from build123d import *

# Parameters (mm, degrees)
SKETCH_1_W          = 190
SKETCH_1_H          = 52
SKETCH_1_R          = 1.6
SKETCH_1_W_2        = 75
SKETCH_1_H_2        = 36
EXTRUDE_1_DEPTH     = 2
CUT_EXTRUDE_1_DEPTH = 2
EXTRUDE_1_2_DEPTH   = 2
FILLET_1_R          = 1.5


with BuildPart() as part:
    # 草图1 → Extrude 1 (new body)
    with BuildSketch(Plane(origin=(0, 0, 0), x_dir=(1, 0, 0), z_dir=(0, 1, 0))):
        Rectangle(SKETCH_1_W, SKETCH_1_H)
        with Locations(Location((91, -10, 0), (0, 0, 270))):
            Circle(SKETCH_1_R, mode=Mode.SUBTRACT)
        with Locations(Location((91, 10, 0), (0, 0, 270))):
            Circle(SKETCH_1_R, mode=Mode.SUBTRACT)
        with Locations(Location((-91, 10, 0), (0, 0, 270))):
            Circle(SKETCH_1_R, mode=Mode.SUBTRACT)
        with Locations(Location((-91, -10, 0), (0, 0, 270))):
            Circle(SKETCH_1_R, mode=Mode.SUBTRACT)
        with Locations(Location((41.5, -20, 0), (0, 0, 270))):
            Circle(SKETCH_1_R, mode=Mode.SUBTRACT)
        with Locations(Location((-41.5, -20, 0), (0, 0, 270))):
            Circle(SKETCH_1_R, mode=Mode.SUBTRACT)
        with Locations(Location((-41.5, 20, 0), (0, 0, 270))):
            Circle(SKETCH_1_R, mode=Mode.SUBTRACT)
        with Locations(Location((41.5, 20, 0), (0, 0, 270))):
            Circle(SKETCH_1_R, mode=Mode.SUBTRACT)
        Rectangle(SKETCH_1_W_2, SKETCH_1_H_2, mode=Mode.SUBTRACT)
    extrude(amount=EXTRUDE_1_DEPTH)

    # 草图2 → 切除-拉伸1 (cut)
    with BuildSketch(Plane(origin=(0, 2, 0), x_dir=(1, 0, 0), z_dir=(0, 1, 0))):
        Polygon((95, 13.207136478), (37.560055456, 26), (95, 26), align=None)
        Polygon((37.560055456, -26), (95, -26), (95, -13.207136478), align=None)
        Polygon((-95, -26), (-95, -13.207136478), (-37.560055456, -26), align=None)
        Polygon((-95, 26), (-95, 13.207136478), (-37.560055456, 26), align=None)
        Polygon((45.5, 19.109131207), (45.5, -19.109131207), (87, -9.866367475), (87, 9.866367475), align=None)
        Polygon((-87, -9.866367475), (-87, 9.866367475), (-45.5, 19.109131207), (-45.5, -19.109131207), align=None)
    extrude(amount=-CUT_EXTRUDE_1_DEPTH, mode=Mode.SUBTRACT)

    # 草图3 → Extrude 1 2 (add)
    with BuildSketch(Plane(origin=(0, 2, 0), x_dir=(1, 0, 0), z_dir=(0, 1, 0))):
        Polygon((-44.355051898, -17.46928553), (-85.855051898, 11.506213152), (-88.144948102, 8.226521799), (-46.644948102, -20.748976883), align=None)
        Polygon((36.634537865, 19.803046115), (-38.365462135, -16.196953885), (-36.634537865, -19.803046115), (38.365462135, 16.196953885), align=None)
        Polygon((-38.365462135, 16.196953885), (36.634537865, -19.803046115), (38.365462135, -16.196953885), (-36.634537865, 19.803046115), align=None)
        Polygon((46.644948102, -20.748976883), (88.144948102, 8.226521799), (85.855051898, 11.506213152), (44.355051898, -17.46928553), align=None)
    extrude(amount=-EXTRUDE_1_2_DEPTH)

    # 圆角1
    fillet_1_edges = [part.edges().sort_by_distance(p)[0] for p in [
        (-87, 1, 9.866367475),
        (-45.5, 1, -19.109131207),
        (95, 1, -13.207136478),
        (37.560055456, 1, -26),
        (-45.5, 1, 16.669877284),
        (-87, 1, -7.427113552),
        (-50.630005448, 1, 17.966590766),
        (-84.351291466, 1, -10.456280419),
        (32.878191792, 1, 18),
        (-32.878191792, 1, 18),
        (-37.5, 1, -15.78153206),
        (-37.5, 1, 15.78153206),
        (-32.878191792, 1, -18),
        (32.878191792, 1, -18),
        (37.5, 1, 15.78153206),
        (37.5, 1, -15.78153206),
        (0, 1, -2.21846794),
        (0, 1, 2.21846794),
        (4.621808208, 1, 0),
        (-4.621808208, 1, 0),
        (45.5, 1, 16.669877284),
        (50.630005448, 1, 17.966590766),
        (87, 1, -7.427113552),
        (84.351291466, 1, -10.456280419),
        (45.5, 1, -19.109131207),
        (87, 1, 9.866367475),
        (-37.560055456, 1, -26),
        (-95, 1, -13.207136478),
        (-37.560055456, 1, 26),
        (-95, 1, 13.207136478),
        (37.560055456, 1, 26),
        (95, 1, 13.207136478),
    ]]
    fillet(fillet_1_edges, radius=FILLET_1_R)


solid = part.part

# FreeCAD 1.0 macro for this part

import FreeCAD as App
import Part
import Sketcher
from FreeCAD import Vector


def edges_at(feature, points):
    """Names of the edges that pass closest to the given points."""
    edges = feature.Shape.Edges
    near = lambda p: min(range(len(edges)), key=lambda i: edges[i].distToShape(Part.Vertex(*p))[0])
    return sorted({f"Edge{near(p) + 1}" for p in points})

doc = App.newDocument("Part")
body = doc.addObject("PartDesign::Body", "Body")

sketch1 = body.newObject("Sketcher::SketchObject", "Sketch")
sketch1.AttachmentSupport = (doc.getObject("XZ_Plane"), [""])
sketch1.MapMode = "FlatFace"
sketch1.addGeometry([
    Part.LineSegment(Vector(-95, -26, 0), Vector(-95, 26, 0)),
    Part.LineSegment(Vector(-95, 26, 0), Vector(95, 26, 0)),
    Part.LineSegment(Vector(95, 26, 0), Vector(95, -26, 0)),
    Part.LineSegment(Vector(95, -26, 0), Vector(-95, -26, 0)),
    Part.Circle(Vector(-41.5, 20, 0), Vector(0, 0, 1), 1.6),
    Part.Circle(Vector(-91, 10, 0), Vector(0, 0, 1), 1.6),
    Part.Circle(Vector(41.5, 20, 0), Vector(0, 0, 1), 1.6),
    Part.Circle(Vector(91, 10, 0), Vector(0, 0, 1), 1.6),
    Part.Circle(Vector(-91, -10, 0), Vector(0, 0, 1), 1.6),
    Part.Circle(Vector(-41.5, -20, 0), Vector(0, 0, 1), 1.6),
    Part.LineSegment(Vector(37.5, 18, 0), Vector(-37.5, 18, 0)),
    Part.LineSegment(Vector(-37.5, 18, 0), Vector(-37.5, -18, 0)),
    Part.LineSegment(Vector(-37.5, -18, 0), Vector(37.5, -18, 0)),
    Part.LineSegment(Vector(37.5, -18, 0), Vector(37.5, 18, 0)),
    Part.Circle(Vector(91, -10, 0), Vector(0, 0, 1), 1.6),
    Part.Circle(Vector(41.5, -20, 0), Vector(0, 0, 1), 1.6),
], False)
sketch1.addConstraint([
    Sketcher.Constraint("Coincident", 0, 2, 1, 1),
    Sketcher.Constraint("Coincident", 1, 2, 2, 1),
    Sketcher.Constraint("Coincident", 2, 2, 3, 1),
    Sketcher.Constraint("Coincident", 3, 2, 0, 1),
    Sketcher.Constraint("Coincident", 10, 2, 11, 1),
    Sketcher.Constraint("Coincident", 11, 2, 12, 1),
    Sketcher.Constraint("Coincident", 12, 2, 13, 1),
    Sketcher.Constraint("Coincident", 13, 2, 10, 1),
    Sketcher.Constraint("Vertical", 0),
    Sketcher.Constraint("Horizontal", 1),
    Sketcher.Constraint("Vertical", 2),
    Sketcher.Constraint("Horizontal", 3),
    Sketcher.Constraint("Horizontal", 10),
    Sketcher.Constraint("Vertical", 11),
    Sketcher.Constraint("Horizontal", 12),
    Sketcher.Constraint("Vertical", 13),
    Sketcher.Constraint("Equal", 4, 5),
    Sketcher.Constraint("Equal", 5, 6),
    Sketcher.Constraint("Equal", 6, 7),
    Sketcher.Constraint("Equal", 7, 8),
    Sketcher.Constraint("Equal", 8, 9),
    Sketcher.Constraint("Equal", 9, 14),
    Sketcher.Constraint("Equal", 14, 15),
    Sketcher.Constraint("Symmetric", 7, 3, 8, 3, -1, 1),
    Sketcher.Constraint("Symmetric", 6, 3, 9, 3, -1, 1),
    Sketcher.Constraint("Symmetric", 5, 3, 14, 3, -1, 1),
    Sketcher.Constraint("Symmetric", 4, 3, 15, 3, -1, 1),
    Sketcher.Constraint("Symmetric", 0, 2, 2, 2, -1, 1),
    Sketcher.Constraint("Symmetric", 10, 2, 12, 2, -1, 1),
    Sketcher.Constraint("Symmetric", 4, 3, 6, 3, -2),
    Sketcher.Constraint("Symmetric", 5, 3, 7, 3, -2),
    Sketcher.Constraint("Diameter", 4, 3.2),
    Sketcher.Constraint("DistanceX", 1, 1, 1, 2, 190.0),
    Sketcher.Constraint("DistanceX", 10, 2, 10, 1, 75.0),
    Sketcher.Constraint("DistanceY", 0, 1, 0, 2, 52.0),
    Sketcher.Constraint("DistanceY", 11, 2, 11, 1, 36.0),
    Sketcher.Constraint("DistanceY", -1, 1, 4, 3, 20.0),
    Sketcher.Constraint("DistanceX", 5, 3, -1, 1, 91.0),
    Sketcher.Constraint("DistanceY", -1, 1, 5, 3, 10.0),
    Sketcher.Constraint("DistanceX", 4, 3, 6, 3, 83.0),
])
pad1 = body.newObject("PartDesign::Pad", "Pad")
pad1.Profile = sketch1
pad1.Length = 2
pad1.Reversed = True

sketch2 = body.newObject("Sketcher::SketchObject", "Sketch001")
sketch2.AttachmentSupport = (doc.getObject("XZ_Plane"), [""])
sketch2.MapMode = "FlatFace"
sketch2.AttachmentOffset = App.Placement(Vector(0, 0, -2), App.Rotation())
sketch2.addGeometry([
    Part.LineSegment(Vector(37.560055, -26, 0), Vector(95, -13.207136, 0)),
    Part.LineSegment(Vector(95, -13.207136, 0), Vector(95, -26, 0)),
    Part.LineSegment(Vector(95, -26, 0), Vector(37.560055, -26, 0)),
    Part.LineSegment(Vector(37.560055, 26, 0), Vector(95, 26, 0)),
    Part.LineSegment(Vector(95, 26, 0), Vector(95, 13.207136, 0)),
    Part.LineSegment(Vector(95, 13.207136, 0), Vector(37.560055, 26, 0)),
    Part.LineSegment(Vector(-95, 13.207136, 0), Vector(-95, 26, 0)),
    Part.LineSegment(Vector(-95, 26, 0), Vector(-37.560055, 26, 0)),
    Part.LineSegment(Vector(-37.560055, 26, 0), Vector(-95, 13.207136, 0)),
    Part.LineSegment(Vector(-95, -26, 0), Vector(-95, -13.207136, 0)),
    Part.LineSegment(Vector(-95, -13.207136, 0), Vector(-37.560055, -26, 0)),
    Part.LineSegment(Vector(-37.560055, -26, 0), Vector(-95, -26, 0)),
    Part.LineSegment(Vector(45.5, -19.109131, 0), Vector(45.5, 19.109131, 0)),
    Part.LineSegment(Vector(45.5, 19.109131, 0), Vector(87, 9.866367, 0)),
    Part.LineSegment(Vector(87, 9.866367, 0), Vector(87, -9.866367, 0)),
    Part.LineSegment(Vector(87, -9.866367, 0), Vector(45.5, -19.109131, 0)),
    Part.LineSegment(Vector(-87, -9.866367, 0), Vector(-87, 9.866367, 0)),
    Part.LineSegment(Vector(-87, 9.866367, 0), Vector(-45.5, 19.109131, 0)),
    Part.LineSegment(Vector(-45.5, 19.109131, 0), Vector(-45.5, -19.109131, 0)),
    Part.LineSegment(Vector(-45.5, -19.109131, 0), Vector(-87, -9.866367, 0)),
], False)
sketch2.addConstraint([
    Sketcher.Constraint("Coincident", 0, 2, 1, 1),
    Sketcher.Constraint("Coincident", 1, 2, 2, 1),
    Sketcher.Constraint("Coincident", 2, 2, 0, 1),
    Sketcher.Constraint("Coincident", 3, 2, 4, 1),
    Sketcher.Constraint("Coincident", 4, 2, 5, 1),
    Sketcher.Constraint("Coincident", 5, 2, 3, 1),
    Sketcher.Constraint("Coincident", 6, 2, 7, 1),
    Sketcher.Constraint("Coincident", 7, 2, 8, 1),
    Sketcher.Constraint("Coincident", 8, 2, 6, 1),
    Sketcher.Constraint("Coincident", 9, 2, 10, 1),
    Sketcher.Constraint("Coincident", 10, 2, 11, 1),
    Sketcher.Constraint("Coincident", 11, 2, 9, 1),
    Sketcher.Constraint("Coincident", 12, 2, 13, 1),
    Sketcher.Constraint("Coincident", 13, 2, 14, 1),
    Sketcher.Constraint("Coincident", 14, 2, 15, 1),
    Sketcher.Constraint("Coincident", 15, 2, 12, 1),
    Sketcher.Constraint("Coincident", 16, 2, 17, 1),
    Sketcher.Constraint("Coincident", 17, 2, 18, 1),
    Sketcher.Constraint("Coincident", 18, 2, 19, 1),
    Sketcher.Constraint("Coincident", 19, 2, 16, 1),
    Sketcher.Constraint("Vertical", 1),
    Sketcher.Constraint("Horizontal", 2),
    Sketcher.Constraint("Horizontal", 3),
    Sketcher.Constraint("Vertical", 4),
    Sketcher.Constraint("Vertical", 6),
    Sketcher.Constraint("Horizontal", 7),
    Sketcher.Constraint("Vertical", 9),
    Sketcher.Constraint("Horizontal", 11),
    Sketcher.Constraint("Vertical", 12),
    Sketcher.Constraint("Vertical", 14),
    Sketcher.Constraint("Vertical", 16),
    Sketcher.Constraint("Vertical", 18),
    Sketcher.Constraint("Symmetric", 1, 2, 6, 2, -1, 1),
    Sketcher.Constraint("Symmetric", 4, 2, 9, 2, -1, 1),
    Sketcher.Constraint("Symmetric", 5, 2, 10, 2, -1, 1),
    Sketcher.Constraint("Symmetric", 14, 2, 16, 2, -1, 1),
    Sketcher.Constraint("Symmetric", 15, 2, 17, 2, -1, 1),
    Sketcher.Constraint("Symmetric", 3, 2, 6, 2, -2),
    Sketcher.Constraint("Parallel", 0, 8),
    Sketcher.Constraint("Parallel", 10, 13),
    Sketcher.Constraint("Parallel", 8, 15),
    Sketcher.Constraint("Parallel", 13, 19),
    Sketcher.Constraint("Horizontal", 4, 2, 8, 2),
    Sketcher.Constraint("Horizontal", 0, 2, 9, 2),
    Sketcher.Constraint("Horizontal", 13, 2, 16, 2),
    Sketcher.Constraint("Horizontal", 12, 2, 17, 2),
    Sketcher.Constraint("Horizontal", 15, 2, 18, 2),
    Sketcher.Constraint("DistanceX", -1, 1, 0, 2, 95.0),
    Sketcher.Constraint("DistanceY", 1, 2, -1, 1, 26.0),
    Sketcher.Constraint("DistanceX", -1, 1, 13, 2, 87.0),
    Sketcher.Constraint("DistanceX", -1, 1, 12, 2, 45.5),
    Sketcher.Constraint("Distance", 0, 58.847299),
    Sketcher.Constraint("DistanceX", 2, 2, 2, 1, 57.439945),
    Sketcher.Constraint("DistanceY", 12, 1, 12, 2, 38.218262),
])
pocket1 = body.newObject("PartDesign::Pocket", "Pocket")
pocket1.Profile = sketch2
pocket1.Length = 2
pocket1.Reversed = True

sketch3 = body.newObject("Sketcher::SketchObject", "Sketch002")
sketch3.AttachmentSupport = (doc.getObject("XZ_Plane"), [""])
sketch3.MapMode = "FlatFace"
sketch3.AttachmentOffset = App.Placement(Vector(0, 0, -2), App.Rotation())
sketch3.addGeometry([
    Part.LineSegment(Vector(-44.355052, 17.469286, 0), Vector(-85.855052, -11.506213, 0)),
    Part.LineSegment(Vector(-85.855052, -11.506213, 0), Vector(-88.144948, -8.226522, 0)),
    Part.LineSegment(Vector(-88.144948, -8.226522, 0), Vector(-46.644948, 20.748977, 0)),
    Part.LineSegment(Vector(-46.644948, 20.748977, 0), Vector(-44.355052, 17.469286, 0)),
    Part.LineSegment(Vector(38.365462, -16.196954, 0), Vector(36.634538, -19.803046, 0)),
    Part.LineSegment(Vector(36.634538, -19.803046, 0), Vector(0, -2.218468, 0)),
    Part.LineSegment(Vector(0, -2.218468, 0), Vector(-36.634538, -19.803046, 0)),
    Part.LineSegment(Vector(-36.634538, -19.803046, 0), Vector(-38.365462, -16.196954, 0)),
    Part.LineSegment(Vector(-38.365462, -16.196954, 0), Vector(-4.621808, 0, 0)),
    Part.LineSegment(Vector(-4.621808, 0, 0), Vector(-38.365462, 16.196954, 0)),
    Part.LineSegment(Vector(-38.365462, 16.196954, 0), Vector(-36.634538, 19.803046, 0)),
    Part.LineSegment(Vector(-36.634538, 19.803046, 0), Vector(0, 2.218468, 0)),
    Part.LineSegment(Vector(0, 2.218468, 0), Vector(36.634538, 19.803046, 0)),
    Part.LineSegment(Vector(36.634538, 19.803046, 0), Vector(38.365462, 16.196954, 0)),
    Part.LineSegment(Vector(38.365462, 16.196954, 0), Vector(4.621808, 0, 0)),
    Part.LineSegment(Vector(4.621808, 0, 0), Vector(38.365462, -16.196954, 0)),
    Part.LineSegment(Vector(46.644948, 20.748977, 0), Vector(88.144948, -8.226522, 0)),
    Part.LineSegment(Vector(88.144948, -8.226522, 0), Vector(85.855052, -11.506213, 0)),
    Part.LineSegment(Vector(85.855052, -11.506213, 0), Vector(44.355052, 17.469286, 0)),
    Part.LineSegment(Vector(44.355052, 17.469286, 0), Vector(46.644948, 20.748977, 0)),
], False)
sketch3.addConstraint([
    Sketcher.Constraint("Coincident", 0, 2, 1, 1),
    Sketcher.Constraint("Coincident", 1, 2, 2, 1),
    Sketcher.Constraint("Coincident", 2, 2, 3, 1),
    Sketcher.Constraint("Coincident", 3, 2, 0, 1),
    Sketcher.Constraint("Coincident", 4, 2, 5, 1),
    Sketcher.Constraint("Coincident", 5, 2, 6, 1),
    Sketcher.Constraint("Coincident", 6, 2, 7, 1),
    Sketcher.Constraint("Coincident", 7, 2, 8, 1),
    Sketcher.Constraint("Coincident", 8, 2, 9, 1),
    Sketcher.Constraint("Coincident", 9, 2, 10, 1),
    Sketcher.Constraint("Coincident", 10, 2, 11, 1),
    Sketcher.Constraint("Coincident", 11, 2, 12, 1),
    Sketcher.Constraint("Coincident", 12, 2, 13, 1),
    Sketcher.Constraint("Coincident", 13, 2, 14, 1),
    Sketcher.Constraint("Coincident", 14, 2, 15, 1),
    Sketcher.Constraint("Coincident", 15, 2, 4, 1),
    Sketcher.Constraint("Coincident", 16, 2, 17, 1),
    Sketcher.Constraint("Coincident", 17, 2, 18, 1),
    Sketcher.Constraint("Coincident", 18, 2, 19, 1),
    Sketcher.Constraint("Coincident", 19, 2, 16, 1),
    Sketcher.Constraint("Symmetric", 4, 2, 10, 2, -1, 1),
    Sketcher.Constraint("Symmetric", 5, 2, 11, 2, -1, 1),
    Sketcher.Constraint("Symmetric", 6, 2, 12, 2, -1, 1),
    Sketcher.Constraint("Symmetric", 7, 2, 13, 2, -1, 1),
    Sketcher.Constraint("Symmetric", 8, 2, 14, 2, -1, 1),
    Sketcher.Constraint("Symmetric", 9, 2, 15, 2, -1, 1),
    Sketcher.Constraint("Symmetric", 4, 2, 6, 2, -2),
    Sketcher.Constraint("Symmetric", 9, 2, 13, 2, -2),
    Sketcher.Constraint("Symmetric", 1, 2, 16, 2, -2),
    Sketcher.Constraint("Symmetric", 0, 2, 17, 2, -2),
    Sketcher.Constraint("Symmetric", 3, 2, 18, 2, -2),
    Sketcher.Constraint("Symmetric", 2, 2, 19, 2, -2),
    Sketcher.Constraint("PointOnObject", 5, 2, -2),
    Sketcher.Constraint("PointOnObject", 8, 2, -1),
    Sketcher.Constraint("Perpendicular", 0, 1),
    Sketcher.Constraint("Perpendicular", 1, 2),
    Sketcher.Constraint("Perpendicular", 2, 3),
    Sketcher.Constraint("Perpendicular", 4, 5),
    Sketcher.Constraint("Perpendicular", 7, 8),
    Sketcher.Constraint("Equal", 3, 4),
    Sketcher.Constraint("Distance", 1, 4.0),
    Sketcher.Constraint("DistanceY", 6, 2, 9, 2, 36.0),
    Sketcher.Constraint("DistanceX", 1, 2, 2, 2, 41.5),
    Sketcher.Constraint("DistanceY", 1, 2, 2, 2, 28.975499),
    Sketcher.Constraint("DistanceX", 0, 2, -1, 1, 85.855052),
    Sketcher.Constraint("DistanceY", 1, 2, -1, 1, 8.226522),
    Sketcher.Constraint("DistanceX", 8, 2, -1, 1, 4.621808),
    Sketcher.Constraint("DistanceX", 3, 2, 4, 2, 80.98959),
])
pad2 = body.newObject("PartDesign::Pad", "Pad001")
pad2.Profile = sketch3
pad2.Length = 2
doc.recompute()

fillet = body.newObject("PartDesign::Fillet", "Fillet")
fillet.Base = (pad2, edges_at(pad2, [
    (-87, 1, 9.866),
    (-45.5, 1, -19.109),
    (95, 1, -13.207),
    (37.56, 1, -26),
    (-45.5, 1, 16.67),
    (-87, 1, -7.427),
    (-50.63, 1, 17.967),
    (-84.351, 1, -10.456),
    (32.878, 1, 18),
    (-32.878, 1, 18),
    (-37.5, 1, -15.782),
    (-37.5, 1, 15.782),
    (-32.878, 1, -18),
    (32.878, 1, -18),
    (37.5, 1, 15.782),
    (37.5, 1, -15.782),
    (0, 1, -2.218),
    (0, 1, 2.218),
    (4.622, 1, 0),
    (-4.622, 1, 0),
    (45.5, 1, 16.67),
    (50.63, 1, 17.967),
    (87, 1, -7.427),
    (84.351, 1, -10.456),
    (45.5, 1, -19.109),
    (87, 1, 9.866),
    (-37.56, 1, -26),
    (-95, 1, -13.207),
    (-37.56, 1, 26),
    (-95, 1, 13.207),
    (37.56, 1, 26),
    (95, 1, 13.207),
]))
fillet.Radius = 1.5

doc.recompute()
